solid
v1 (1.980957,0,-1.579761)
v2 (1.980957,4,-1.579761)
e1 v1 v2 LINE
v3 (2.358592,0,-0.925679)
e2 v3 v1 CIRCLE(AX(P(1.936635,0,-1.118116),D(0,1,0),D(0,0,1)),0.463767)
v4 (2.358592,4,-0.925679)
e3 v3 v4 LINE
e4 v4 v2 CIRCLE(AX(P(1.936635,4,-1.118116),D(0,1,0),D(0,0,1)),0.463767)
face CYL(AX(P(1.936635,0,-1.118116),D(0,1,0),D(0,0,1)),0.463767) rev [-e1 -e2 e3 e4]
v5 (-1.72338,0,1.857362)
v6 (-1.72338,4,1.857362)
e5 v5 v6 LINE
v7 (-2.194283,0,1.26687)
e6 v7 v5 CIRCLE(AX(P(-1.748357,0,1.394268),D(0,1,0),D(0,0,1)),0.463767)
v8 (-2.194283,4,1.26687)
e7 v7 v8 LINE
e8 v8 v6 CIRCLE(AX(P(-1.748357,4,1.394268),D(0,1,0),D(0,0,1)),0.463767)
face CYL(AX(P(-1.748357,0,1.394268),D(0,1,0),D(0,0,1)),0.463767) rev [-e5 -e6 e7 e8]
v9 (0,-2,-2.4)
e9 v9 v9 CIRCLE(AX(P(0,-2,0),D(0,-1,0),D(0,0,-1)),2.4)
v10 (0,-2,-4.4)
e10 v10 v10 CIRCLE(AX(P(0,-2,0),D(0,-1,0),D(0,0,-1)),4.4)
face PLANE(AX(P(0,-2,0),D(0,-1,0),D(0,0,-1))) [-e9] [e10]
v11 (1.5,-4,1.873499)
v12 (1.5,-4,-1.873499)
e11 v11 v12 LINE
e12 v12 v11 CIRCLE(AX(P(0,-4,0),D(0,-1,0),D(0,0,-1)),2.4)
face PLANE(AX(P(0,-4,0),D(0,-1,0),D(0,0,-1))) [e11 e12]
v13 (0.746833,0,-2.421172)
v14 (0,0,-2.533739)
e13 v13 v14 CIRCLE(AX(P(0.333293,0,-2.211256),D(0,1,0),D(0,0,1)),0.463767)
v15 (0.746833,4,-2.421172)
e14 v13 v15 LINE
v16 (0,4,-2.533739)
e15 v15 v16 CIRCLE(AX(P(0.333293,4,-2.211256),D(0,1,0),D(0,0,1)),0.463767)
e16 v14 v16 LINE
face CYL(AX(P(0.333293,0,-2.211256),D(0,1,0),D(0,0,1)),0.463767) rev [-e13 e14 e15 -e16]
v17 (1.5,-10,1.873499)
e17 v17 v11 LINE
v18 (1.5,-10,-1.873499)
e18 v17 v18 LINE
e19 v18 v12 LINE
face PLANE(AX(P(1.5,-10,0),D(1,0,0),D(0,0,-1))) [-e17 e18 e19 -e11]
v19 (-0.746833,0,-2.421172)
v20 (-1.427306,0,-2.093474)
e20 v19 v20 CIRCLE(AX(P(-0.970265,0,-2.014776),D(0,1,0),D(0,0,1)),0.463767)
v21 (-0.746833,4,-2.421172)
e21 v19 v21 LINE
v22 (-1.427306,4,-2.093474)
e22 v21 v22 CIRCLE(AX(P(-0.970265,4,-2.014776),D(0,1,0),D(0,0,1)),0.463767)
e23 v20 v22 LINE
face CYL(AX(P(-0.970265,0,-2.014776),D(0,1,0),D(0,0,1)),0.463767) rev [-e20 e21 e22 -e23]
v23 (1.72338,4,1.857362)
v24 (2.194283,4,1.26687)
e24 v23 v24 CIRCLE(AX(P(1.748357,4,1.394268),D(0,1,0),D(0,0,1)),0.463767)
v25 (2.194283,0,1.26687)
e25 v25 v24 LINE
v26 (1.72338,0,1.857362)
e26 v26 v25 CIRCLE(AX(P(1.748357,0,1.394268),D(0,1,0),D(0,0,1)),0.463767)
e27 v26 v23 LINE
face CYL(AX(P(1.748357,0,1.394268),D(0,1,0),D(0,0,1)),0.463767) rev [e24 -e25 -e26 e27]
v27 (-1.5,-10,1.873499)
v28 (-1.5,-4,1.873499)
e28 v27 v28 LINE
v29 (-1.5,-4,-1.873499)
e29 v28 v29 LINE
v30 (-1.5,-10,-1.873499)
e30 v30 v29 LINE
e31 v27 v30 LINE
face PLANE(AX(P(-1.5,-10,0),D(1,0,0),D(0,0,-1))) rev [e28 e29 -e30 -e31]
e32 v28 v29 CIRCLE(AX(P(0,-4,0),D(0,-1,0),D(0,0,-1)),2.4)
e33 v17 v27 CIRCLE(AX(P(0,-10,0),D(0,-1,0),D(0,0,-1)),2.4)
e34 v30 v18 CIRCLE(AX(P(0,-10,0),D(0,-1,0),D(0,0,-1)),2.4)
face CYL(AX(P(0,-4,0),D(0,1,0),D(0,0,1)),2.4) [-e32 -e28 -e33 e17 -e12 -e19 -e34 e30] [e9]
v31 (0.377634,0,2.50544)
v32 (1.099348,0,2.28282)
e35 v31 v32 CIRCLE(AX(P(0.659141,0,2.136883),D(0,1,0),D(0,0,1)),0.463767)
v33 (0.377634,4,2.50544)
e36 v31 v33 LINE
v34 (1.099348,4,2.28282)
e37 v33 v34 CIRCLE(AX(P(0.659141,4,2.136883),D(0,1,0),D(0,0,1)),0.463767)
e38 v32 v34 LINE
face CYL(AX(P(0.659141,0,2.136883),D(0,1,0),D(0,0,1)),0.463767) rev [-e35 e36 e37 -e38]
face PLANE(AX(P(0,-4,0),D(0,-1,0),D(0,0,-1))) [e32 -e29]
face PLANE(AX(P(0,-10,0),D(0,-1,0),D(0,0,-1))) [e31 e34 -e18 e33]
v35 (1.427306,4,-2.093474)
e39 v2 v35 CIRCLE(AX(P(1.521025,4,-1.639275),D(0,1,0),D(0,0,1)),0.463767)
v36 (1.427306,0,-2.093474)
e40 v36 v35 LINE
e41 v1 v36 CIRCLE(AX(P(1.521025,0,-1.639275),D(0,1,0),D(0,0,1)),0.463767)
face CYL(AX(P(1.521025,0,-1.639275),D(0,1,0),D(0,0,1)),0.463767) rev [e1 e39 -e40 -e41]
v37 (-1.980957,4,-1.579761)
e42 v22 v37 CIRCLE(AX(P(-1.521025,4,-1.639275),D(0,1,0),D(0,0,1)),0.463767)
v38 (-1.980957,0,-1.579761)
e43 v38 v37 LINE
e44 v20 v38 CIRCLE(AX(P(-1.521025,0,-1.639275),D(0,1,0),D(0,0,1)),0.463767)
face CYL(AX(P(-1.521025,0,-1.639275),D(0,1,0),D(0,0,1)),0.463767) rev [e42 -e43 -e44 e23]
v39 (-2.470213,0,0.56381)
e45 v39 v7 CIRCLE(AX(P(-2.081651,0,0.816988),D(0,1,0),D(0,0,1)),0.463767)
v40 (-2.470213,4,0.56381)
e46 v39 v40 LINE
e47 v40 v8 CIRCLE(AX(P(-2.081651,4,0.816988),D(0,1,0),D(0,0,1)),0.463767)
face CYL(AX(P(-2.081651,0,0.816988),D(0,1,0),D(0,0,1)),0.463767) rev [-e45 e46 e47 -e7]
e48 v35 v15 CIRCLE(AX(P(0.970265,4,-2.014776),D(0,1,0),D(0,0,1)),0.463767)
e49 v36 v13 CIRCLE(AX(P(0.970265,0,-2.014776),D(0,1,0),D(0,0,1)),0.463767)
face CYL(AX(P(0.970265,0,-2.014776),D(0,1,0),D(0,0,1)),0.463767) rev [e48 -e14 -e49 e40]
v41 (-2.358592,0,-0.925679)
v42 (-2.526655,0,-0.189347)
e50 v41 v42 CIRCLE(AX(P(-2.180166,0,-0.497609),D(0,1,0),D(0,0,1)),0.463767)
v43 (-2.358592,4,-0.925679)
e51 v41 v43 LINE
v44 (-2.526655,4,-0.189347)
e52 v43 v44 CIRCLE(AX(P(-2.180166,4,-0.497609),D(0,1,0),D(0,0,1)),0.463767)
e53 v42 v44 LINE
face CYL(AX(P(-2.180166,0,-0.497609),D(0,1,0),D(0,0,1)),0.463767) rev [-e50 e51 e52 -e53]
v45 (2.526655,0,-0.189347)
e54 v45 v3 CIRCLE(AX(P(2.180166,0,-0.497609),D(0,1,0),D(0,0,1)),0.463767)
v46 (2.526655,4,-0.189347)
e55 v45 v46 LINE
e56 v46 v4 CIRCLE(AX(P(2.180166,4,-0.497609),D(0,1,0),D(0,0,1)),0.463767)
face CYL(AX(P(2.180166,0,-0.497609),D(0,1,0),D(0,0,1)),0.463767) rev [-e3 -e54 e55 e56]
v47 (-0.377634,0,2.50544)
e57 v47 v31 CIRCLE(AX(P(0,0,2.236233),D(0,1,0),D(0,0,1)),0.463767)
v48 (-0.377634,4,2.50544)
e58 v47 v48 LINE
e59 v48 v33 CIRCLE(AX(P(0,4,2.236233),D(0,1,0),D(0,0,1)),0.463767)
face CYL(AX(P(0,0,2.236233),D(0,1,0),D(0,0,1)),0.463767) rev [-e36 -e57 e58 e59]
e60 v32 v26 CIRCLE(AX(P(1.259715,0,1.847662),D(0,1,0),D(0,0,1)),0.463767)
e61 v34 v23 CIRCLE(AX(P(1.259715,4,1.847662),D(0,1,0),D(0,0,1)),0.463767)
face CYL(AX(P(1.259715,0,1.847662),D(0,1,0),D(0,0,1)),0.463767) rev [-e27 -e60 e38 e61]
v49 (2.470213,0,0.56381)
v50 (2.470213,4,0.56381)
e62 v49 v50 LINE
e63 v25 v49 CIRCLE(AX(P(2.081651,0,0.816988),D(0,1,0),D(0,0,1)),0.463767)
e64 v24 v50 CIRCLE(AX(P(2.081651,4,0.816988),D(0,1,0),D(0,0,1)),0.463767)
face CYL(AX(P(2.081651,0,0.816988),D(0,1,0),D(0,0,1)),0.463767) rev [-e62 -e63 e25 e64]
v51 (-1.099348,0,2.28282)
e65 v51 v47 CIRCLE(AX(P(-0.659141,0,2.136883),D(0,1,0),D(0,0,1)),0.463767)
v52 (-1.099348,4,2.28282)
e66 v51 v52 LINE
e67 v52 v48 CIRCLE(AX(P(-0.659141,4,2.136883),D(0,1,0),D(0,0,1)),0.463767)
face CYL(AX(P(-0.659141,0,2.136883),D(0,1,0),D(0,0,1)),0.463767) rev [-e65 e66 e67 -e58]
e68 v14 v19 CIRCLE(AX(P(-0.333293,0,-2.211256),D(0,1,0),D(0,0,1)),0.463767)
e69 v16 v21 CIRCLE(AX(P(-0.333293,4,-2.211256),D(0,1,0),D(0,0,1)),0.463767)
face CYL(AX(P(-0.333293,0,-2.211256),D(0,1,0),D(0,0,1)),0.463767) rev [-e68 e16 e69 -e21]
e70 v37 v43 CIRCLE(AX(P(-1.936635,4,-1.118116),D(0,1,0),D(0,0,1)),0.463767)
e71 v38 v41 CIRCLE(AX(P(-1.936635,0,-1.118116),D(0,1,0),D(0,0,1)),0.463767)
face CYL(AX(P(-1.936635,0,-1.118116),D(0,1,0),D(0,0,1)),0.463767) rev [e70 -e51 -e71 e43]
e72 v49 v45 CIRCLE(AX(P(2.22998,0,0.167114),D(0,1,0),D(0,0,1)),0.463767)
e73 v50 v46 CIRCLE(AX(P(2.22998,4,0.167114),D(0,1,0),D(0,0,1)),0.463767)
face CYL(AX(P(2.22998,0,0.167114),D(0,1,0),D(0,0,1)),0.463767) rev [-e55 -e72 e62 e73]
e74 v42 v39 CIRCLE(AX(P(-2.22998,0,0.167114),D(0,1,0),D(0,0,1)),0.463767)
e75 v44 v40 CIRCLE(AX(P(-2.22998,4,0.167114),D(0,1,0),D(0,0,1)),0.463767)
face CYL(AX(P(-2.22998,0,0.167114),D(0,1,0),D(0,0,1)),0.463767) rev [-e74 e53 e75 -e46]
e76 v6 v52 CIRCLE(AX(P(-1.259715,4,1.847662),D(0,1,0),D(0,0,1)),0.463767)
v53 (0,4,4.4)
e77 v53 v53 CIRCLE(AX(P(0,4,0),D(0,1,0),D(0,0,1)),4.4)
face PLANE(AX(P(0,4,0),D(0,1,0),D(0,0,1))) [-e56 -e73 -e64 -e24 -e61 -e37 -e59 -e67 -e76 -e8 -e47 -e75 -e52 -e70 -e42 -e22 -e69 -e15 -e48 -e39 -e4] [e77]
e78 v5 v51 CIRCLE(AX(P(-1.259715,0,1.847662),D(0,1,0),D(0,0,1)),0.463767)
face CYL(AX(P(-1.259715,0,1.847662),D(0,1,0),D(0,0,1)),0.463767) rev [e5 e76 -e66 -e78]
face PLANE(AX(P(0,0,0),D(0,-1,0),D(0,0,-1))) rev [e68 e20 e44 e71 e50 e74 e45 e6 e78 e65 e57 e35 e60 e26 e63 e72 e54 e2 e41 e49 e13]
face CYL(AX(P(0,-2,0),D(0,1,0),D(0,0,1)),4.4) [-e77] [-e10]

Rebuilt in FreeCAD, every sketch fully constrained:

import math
import FreeCAD as App
import Part
import Sketcher
from FreeCAD import Vector
Q = App.Units.Quantity

doc = App.newDocument("Part")
params = doc.addObject("Spreadsheet::Sheet", "Params")
for row, (alias, value) in enumerate([
    ("sketch1_diameter", "7.9 mm"),
    ("pad1_length", "4 mm"),
    ("sketch2_diameter", "8.8 mm"),
    ("pad2_length", "2 mm"),
    ("sketch3_diameter", "4.8 mm"),
    ("pad3_length", "2 mm"),
    ("sketch4_radius", "2.4 mm"),
    ("pad4_length", "6 mm"),
    ("sketch5_diameter", "8.8 mm"),
    ("sketch5_diameter2", "7.9 mm"),
    ("pad5_length", "4 mm"),
    ("pocket1_length", "4 mm"),
], start=1):
    params.set(f"A{row}", alias)
    params.set(f"B{row}", "=" + value)
    params.setAlias(f"B{row}", alias)

body = doc.addObject("PartDesign::Body", "Body")

# Sketch on XZ plane
sketch1 = body.newObject("Sketcher::SketchObject", "Sketch")
sketch1.AttachmentSupport = (doc.getObject("XZ_Plane"), [""])
sketch1.MapMode = "FlatFace"
sketch1.addGeometry(Part.Circle(Vector(0, 0, 0), Vector(0, 0, 1), 3.95), False)
sketch1.addGeometry(Part.ArcOfCircle(Part.Circle(Vector(-0.33, -2.21, 0), Vector(0, 0, 1), 0.21), math.radians(-158), math.radians(-39)), False)
sketch1.addGeometry(Part.ArcOfCircle(Part.Circle(Vector(0, -2.48, 0), Vector(0, 0, 1), 0.21), math.radians(90), math.radians(141)), False)
sketch1.addGeometry(Part.ArcOfCircle(Part.Circle(Vector(0, -2.48, 0), Vector(0, 0, 1), 0.21), math.radians(39), math.radians(90)), False)
sketch1.addGeometry(Part.ArcOfCircle(Part.Circle(Vector(0.33, -2.21, 0), Vector(0, 0, 1), 0.21), math.radians(-141), math.radians(-22)), False)
sketch1.addGeometry(Part.ArcOfCircle(Part.Circle(Vector(0.73, -2.37, 0), Vector(0, 0, 1), 0.21), math.radians(107), math.radians(158)), False)
sketch1.addGeometry(Part.ArcOfCircle(Part.Circle(Vector(0.73, -2.37, 0), Vector(0, 0, 1), 0.21), math.radians(56), math.radians(107)), False)
sketch1.addGeometry(Part.ArcOfCircle(Part.Circle(Vector(0.97, -2.01, 0), Vector(0, 0, 1), 0.21), math.radians(-124), math.radians(-4)), False)
sketch1.addGeometry(Part.ArcOfCircle(Part.Circle(Vector(1.4, -2.05, 0), Vector(0, 0, 1), 0.21), math.radians(124), math.radians(176)), False)
sketch1.addGeometry(Part.ArcOfCircle(Part.Circle(Vector(1.4, -2.05, 0), Vector(0, 0, 1), 0.21), math.radians(73), math.radians(124)), False)
sketch1.addGeometry(Part.ArcOfCircle(Part.Circle(Vector(1.52, -1.64, 0), Vector(0, 0, 1), 0.21), math.radians(-107), math.radians(13)), False)
sketch1.addGeometry(Part.ArcOfCircle(Part.Circle(Vector(1.94, -1.55, 0), Vector(0, 0, 1), 0.21), math.radians(141), math.radians(193)), False)
sketch1.addGeometry(Part.ArcOfCircle(Part.Circle(Vector(1.94, -1.55, 0), Vector(0, 0, 1), 0.21), math.radians(90), math.radians(141)), False)
sketch1.addGeometry(Part.ArcOfCircle(Part.Circle(Vector(1.94, -1.12, 0), Vector(0, 0, 1), 0.21), math.radians(-90), math.radians(30)), False)
sketch1.addGeometry(Part.ArcOfCircle(Part.Circle(Vector(2.31, -0.91, 0), Vector(0, 0, 1), 0.21), math.radians(159), math.radians(210)), False)
sketch1.addGeometry(Part.ArcOfCircle(Part.Circle(Vector(2.31, -0.91, 0), Vector(0, 0, 1), 0.21), math.radians(107), math.radians(159)), False)
sketch1.addGeometry(Part.ArcOfCircle(Part.Circle(Vector(2.18, -0.5, 0), Vector(0, 0, 1), 0.21), math.radians(-73), math.radians(47)), False)
sketch1.addGeometry(Part.ArcOfCircle(Part.Circle(Vector(2.47, -0.19, 0), Vector(0, 0, 1), 0.21), math.radians(176), math.radians(227)), False)
sketch1.addGeometry(Part.ArcOfCircle(Part.Circle(Vector(2.47, -0.19, 0), Vector(0, 0, 1), 0.21), math.radians(124), math.radians(176)), False)
sketch1.addGeometry(Part.ArcOfCircle(Part.Circle(Vector(2.23, 0.17, 0), Vector(0, 0, 1), 0.21), math.radians(-56), math.radians(64)), False)
sketch1.addGeometry(Part.ArcOfCircle(Part.Circle(Vector(2.42, 0.55, 0), Vector(0, 0, 1), 0.21), math.radians(-167), math.radians(-116)), False)
sketch1.addGeometry(Part.ArcOfCircle(Part.Circle(Vector(2.42, 0.55, 0), Vector(0, 0, 1), 0.21), math.radians(142), math.radians(193)), False)
sketch1.addGeometry(Part.ArcOfCircle(Part.Circle(Vector(2.08, 0.82, 0), Vector(0, 0, 1), 0.21), math.radians(-38), math.radians(81)), False)
sketch1.addGeometry(Part.ArcOfCircle(Part.Circle(Vector(2.15, 1.24, 0), Vector(0, 0, 1), 0.21), math.radians(-150), math.radians(-99)), False)
sketch1.addGeometry(Part.ArcOfCircle(Part.Circle(Vector(2.15, 1.24, 0), Vector(0, 0, 1), 0.21), math.radians(159), math.radians(210)), False)
sketch1.addGeometry(Part.ArcOfCircle(Part.Circle(Vector(1.75, 1.39, 0), Vector(0, 0, 1), 0.21), math.radians(-21), math.radians(98)), False)
sketch1.addGeometry(Part.ArcOfCircle(Part.Circle(Vector(1.69, 1.82, 0), Vector(0, 0, 1), 0.21), math.radians(-133), math.radians(-82)), False)
sketch1.addGeometry(Part.ArcOfCircle(Part.Circle(Vector(1.69, 1.82, 0), Vector(0, 0, 1), 0.21), math.radians(176), math.radians(227)), False)
sketch1.addGeometry(Part.ArcOfCircle(Part.Circle(Vector(1.26, 1.85, 0), Vector(0, 0, 1), 0.21), math.radians(-4), math.radians(116)), False)
sketch1.addGeometry(Part.ArcOfCircle(Part.Circle(Vector(1.08, 2.23, 0), Vector(0, 0, 1), 0.21), math.radians(-116), math.radians(-64)), False)
sketch1.addGeometry(Part.ArcOfCircle(Part.Circle(Vector(1.08, 2.23, 0), Vector(0, 0, 1), 0.21), math.radians(-167), math.radians(-116)), False)
sketch1.addGeometry(Part.ArcOfCircle(Part.Circle(Vector(0.66, 2.14, 0), Vector(0, 0, 1), 0.21), math.radians(13), math.radians(133)), False)
sketch1.addGeometry(Part.ArcOfCircle(Part.Circle(Vector(0.37, 2.45, 0), Vector(0, 0, 1), 0.21), math.radians(-99), math.radians(-47)), False)
sketch1.addGeometry(Part.ArcOfCircle(Part.Circle(Vector(0.37, 2.45, 0), Vector(0, 0, 1), 0.21), math.radians(-150), math.radians(-99)), False)
sketch1.addGeometry(Part.ArcOfCircle(Part.Circle(Vector(0, 2.24, 0), Vector(0, 0, 1), 0.21), math.radians(30), math.radians(150)), False)
sketch1.addGeometry(Part.ArcOfCircle(Part.Circle(Vector(-0.37, 2.45, 0), Vector(0, 0, 1), 0.21), math.radians(-81), math.radians(-30)), False)
sketch1.addGeometry(Part.ArcOfCircle(Part.Circle(Vector(-0.37, 2.45, 0), Vector(0, 0, 1), 0.21), math.radians(-133), math.radians(-81)), False)
sketch1.addGeometry(Part.ArcOfCircle(Part.Circle(Vector(-0.66, 2.14, 0), Vector(0, 0, 1), 0.21), math.radians(47), math.radians(167)), False)
sketch1.addGeometry(Part.ArcOfCircle(Part.Circle(Vector(-1.08, 2.23, 0), Vector(0, 0, 1), 0.21), math.radians(-64), math.radians(-13)), False)
sketch1.addGeometry(Part.ArcOfCircle(Part.Circle(Vector(-1.08, 2.23, 0), Vector(0, 0, 1), 0.21), math.radians(-116), math.radians(-64)), False)
sketch1.addGeometry(Part.ArcOfCircle(Part.Circle(Vector(-1.26, 1.85, 0), Vector(0, 0, 1), 0.21), math.radians(64), math.radians(184)), False)
sketch1.addGeometry(Part.ArcOfCircle(Part.Circle(Vector(-1.69, 1.82, 0), Vector(0, 0, 1), 0.21), math.radians(-47), math.radians(4)), False)
sketch1.addGeometry(Part.ArcOfCircle(Part.Circle(Vector(-1.69, 1.82, 0), Vector(0, 0, 1), 0.21), math.radians(-98), math.radians(-47)), False)
sketch1.addGeometry(Part.ArcOfCircle(Part.Circle(Vector(-1.75, 1.39, 0), Vector(0, 0, 1), 0.21), math.radians(82), math.radians(201)), False)
sketch1.addGeometry(Part.ArcOfCircle(Part.Circle(Vector(-2.15, 1.24, 0), Vector(0, 0, 1), 0.21), math.radians(-30), math.radians(21)), False)
sketch1.addGeometry(Part.ArcOfCircle(Part.Circle(Vector(-2.15, 1.24, 0), Vector(0, 0, 1), 0.21), math.radians(-81), math.radians(-30)), False)
sketch1.addGeometry(Part.ArcOfCircle(Part.Circle(Vector(-2.08, 0.82, 0), Vector(0, 0, 1), 0.21), math.radians(99), math.radians(218)), False)
sketch1.addGeometry(Part.ArcOfCircle(Part.Circle(Vector(-2.42, 0.55, 0), Vector(0, 0, 1), 0.21), math.radians(-13), math.radians(38)), False)
sketch1.addGeometry(Part.ArcOfCircle(Part.Circle(Vector(-2.42, 0.55, 0), Vector(0, 0, 1), 0.21), math.radians(-64), math.radians(-13)), False)
sketch1.addGeometry(Part.ArcOfCircle(Part.Circle(Vector(-2.23, 0.17, 0), Vector(0, 0, 1), 0.21), math.radians(116), math.radians(236)), False)
sketch1.addGeometry(Part.ArcOfCircle(Part.Circle(Vector(-2.47, -0.19, 0), Vector(0, 0, 1), 0.21), math.radians(4), math.radians(56)), False)
sketch1.addGeometry(Part.ArcOfCircle(Part.Circle(Vector(-2.47, -0.19, 0), Vector(0, 0, 1), 0.21), math.radians(-47), math.radians(4)), False)
sketch1.addGeometry(Part.ArcOfCircle(Part.Circle(Vector(-2.18, -0.5, 0), Vector(0, 0, 1), 0.21), math.radians(133), math.radians(253)), False)
sketch1.addGeometry(Part.ArcOfCircle(Part.Circle(Vector(-2.31, -0.91, 0), Vector(0, 0, 1), 0.21), math.radians(21), math.radians(73)), False)
sketch1.addGeometry(Part.ArcOfCircle(Part.Circle(Vector(-2.31, -0.91, 0), Vector(0, 0, 1), 0.21), math.radians(-30), math.radians(21)), False)
sketch1.addGeometry(Part.ArcOfCircle(Part.Circle(Vector(-1.94, -1.12, 0), Vector(0, 0, 1), 0.21), math.radians(150), math.radians(270)), False)
sketch1.addGeometry(Part.ArcOfCircle(Part.Circle(Vector(-1.94, -1.55, 0), Vector(0, 0, 1), 0.21), math.radians(39), math.radians(90)), False)
sketch1.addGeometry(Part.ArcOfCircle(Part.Circle(Vector(-1.94, -1.55, 0), Vector(0, 0, 1), 0.21), math.radians(-13), math.radians(39)), False)
sketch1.addGeometry(Part.ArcOfCircle(Part.Circle(Vector(-1.52, -1.64, 0), Vector(0, 0, 1), 0.21), math.radians(167), math.radians(287)), False)
sketch1.addGeometry(Part.ArcOfCircle(Part.Circle(Vector(-1.4, -2.05, 0), Vector(0, 0, 1), 0.21), math.radians(56), math.radians(107)), False)
sketch1.addGeometry(Part.ArcOfCircle(Part.Circle(Vector(-1.4, -2.05, 0), Vector(0, 0, 1), 0.21), math.radians(4), math.radians(56)), False)
sketch1.addGeometry(Part.ArcOfCircle(Part.Circle(Vector(-0.97, -2.01, 0), Vector(0, 0, 1), 0.21), math.radians(-176), math.radians(-56)), False)
sketch1.addGeometry(Part.ArcOfCircle(Part.Circle(Vector(-0.73, -2.37, 0), Vector(0, 0, 1), 0.21), math.radians(73), math.radians(124)), False)
sketch1.addGeometry(Part.ArcOfCircle(Part.Circle(Vector(-0.73, -2.37, 0), Vector(0, 0, 1), 0.21), math.radians(22), math.radians(73)), False)
sketch1.addConstraint(Sketcher.Constraint("Tangent", 1, 2, 2, 2))
sketch1.addConstraint(Sketcher.Constraint("Tangent", 2, 1, 3, 2))
sketch1.addConstraint(Sketcher.Constraint("Tangent", 3, 1, 4, 1))
sketch1.addConstraint(Sketcher.Constraint("Tangent", 4, 2, 5, 2))
sketch1.addConstraint(Sketcher.Constraint("Tangent", 5, 1, 6, 2))
sketch1.addConstraint(Sketcher.Constraint("Tangent", 6, 1, 7, 1))
sketch1.addConstraint(Sketcher.Constraint("Tangent", 7, 2, 8, 2))
sketch1.addConstraint(Sketcher.Constraint("Tangent", 8, 1, 9, 2))
sketch1.addConstraint(Sketcher.Constraint("Tangent", 9, 1, 10, 1))
sketch1.addConstraint(Sketcher.Constraint("Tangent", 10, 2, 11, 2))
sketch1.addConstraint(Sketcher.Constraint("Tangent", 11, 1, 12, 2))
sketch1.addConstraint(Sketcher.Constraint("Tangent", 12, 1, 13, 1))
sketch1.addConstraint(Sketcher.Constraint("Tangent", 13, 2, 14, 2))
sketch1.addConstraint(Sketcher.Constraint("Tangent", 14, 1, 15, 2))
sketch1.addConstraint(Sketcher.Constraint("Tangent", 15, 1, 16, 1))
sketch1.addConstraint(Sketcher.Constraint("Tangent", 16, 2, 17, 2))
sketch1.addConstraint(Sketcher.Constraint("Tangent", 17, 1, 18, 2))
sketch1.addConstraint(Sketcher.Constraint("Tangent", 18, 1, 19, 1))
sketch1.addConstraint(Sketcher.Constraint("Tangent", 19, 2, 20, 2))
sketch1.addConstraint(Sketcher.Constraint("Tangent", 20, 1, 21, 2))
sketch1.addConstraint(Sketcher.Constraint("Tangent", 21, 1, 22, 1))
sketch1.addConstraint(Sketcher.Constraint("Tangent", 22, 2, 23, 2))
sketch1.addConstraint(Sketcher.Constraint("Tangent", 23, 1, 24, 2))
sketch1.addConstraint(Sketcher.Constraint("Tangent", 24, 1, 25, 1))
sketch1.addConstraint(Sketcher.Constraint("Tangent", 25, 2, 26, 2))
sketch1.addConstraint(Sketcher.Constraint("Tangent", 26, 1, 27, 2))
sketch1.addConstraint(Sketcher.Constraint("Tangent", 27, 1, 28, 1))
sketch1.addConstraint(Sketcher.Constraint("Tangent", 28, 2, 29, 2))
sketch1.addConstraint(Sketcher.Constraint("Tangent", 29, 1, 30, 2))
sketch1.addConstraint(Sketcher.Constraint("Tangent", 30, 1, 31, 1))
sketch1.addConstraint(Sketcher.Constraint("Tangent", 31, 2, 32, 2))
sketch1.addConstraint(Sketcher.Constraint("Tangent", 32, 1, 33, 2))
sketch1.addConstraint(Sketcher.Constraint("Tangent", 33, 1, 34, 1))
sketch1.addConstraint(Sketcher.Constraint("Tangent", 34, 2, 35, 2))
sketch1.addConstraint(Sketcher.Constraint("Tangent", 35, 1, 36, 2))
sketch1.addConstraint(Sketcher.Constraint("Tangent", 36, 1, 37, 1))
sketch1.addConstraint(Sketcher.Constraint("Tangent", 37, 2, 38, 2))
sketch1.addConstraint(Sketcher.Constraint("Tangent", 38, 1, 39, 2))
sketch1.addConstraint(Sketcher.Constraint("Tangent", 39, 1, 40, 1))
sketch1.addConstraint(Sketcher.Constraint("Tangent", 40, 2, 41, 2))
sketch1.addConstraint(Sketcher.Constraint("Tangent", 41, 1, 42, 2))
sketch1.addConstraint(Sketcher.Constraint("Tangent", 42, 1, 43, 1))
sketch1.addConstraint(Sketcher.Constraint("Tangent", 43, 2, 44, 2))
sketch1.addConstraint(Sketcher.Constraint("Tangent", 44, 1, 45, 2))
sketch1.addConstraint(Sketcher.Constraint("Tangent", 45, 1, 46, 1))
sketch1.addConstraint(Sketcher.Constraint("Tangent", 46, 2, 47, 2))
sketch1.addConstraint(Sketcher.Constraint("Tangent", 47, 1, 48, 2))
sketch1.addConstraint(Sketcher.Constraint("Tangent", 48, 1, 49, 1))
sketch1.addConstraint(Sketcher.Constraint("Tangent", 49, 2, 50, 2))
sketch1.addConstraint(Sketcher.Constraint("Tangent", 50, 1, 51, 2))
sketch1.addConstraint(Sketcher.Constraint("Tangent", 51, 1, 52, 1))
sketch1.addConstraint(Sketcher.Constraint("Tangent", 52, 2, 53, 2))
sketch1.addConstraint(Sketcher.Constraint("Tangent", 53, 1, 54, 2))
sketch1.addConstraint(Sketcher.Constraint("Tangent", 54, 1, 55, 1))
sketch1.addConstraint(Sketcher.Constraint("Tangent", 55, 2, 56, 2))
sketch1.addConstraint(Sketcher.Constraint("Tangent", 56, 1, 57, 2))
sketch1.addConstraint(Sketcher.Constraint("Tangent", 57, 1, 58, 1))
sketch1.addConstraint(Sketcher.Constraint("Tangent", 58, 2, 59, 2))
sketch1.addConstraint(Sketcher.Constraint("Tangent", 59, 1, 60, 2))
sketch1.addConstraint(Sketcher.Constraint("Tangent", 60, 1, 61, 1))
sketch1.addConstraint(Sketcher.Constraint("Tangent", 61, 2, 62, 2))
sketch1.addConstraint(Sketcher.Constraint("Tangent", 62, 1, 63, 2))
sketch1.addConstraint(Sketcher.Constraint("Tangent", 63, 1, 1, 1))
sketch1.addConstraint(Sketcher.Constraint("Coincident", 0, 3, -1, 1))
sketch1.addConstraint(Sketcher.Constraint("Equal", 1, 2))
sketch1.addConstraint(Sketcher.Constraint("Equal", 2, 3))
sketch1.addConstraint(Sketcher.Constraint("Equal", 3, 4))
sketch1.addConstraint(Sketcher.Constraint("Equal", 4, 5))
sketch1.addConstraint(Sketcher.Constraint("Equal", 5, 6))
sketch1.addConstraint(Sketcher.Constraint("Equal", 6, 7))
sketch1.addConstraint(Sketcher.Constraint("Equal", 7, 8))
sketch1.addConstraint(Sketcher.Constraint("Equal", 8, 9))
sketch1.addConstraint(Sketcher.Constraint("Equal", 9, 10))
sketch1.addConstraint(Sketcher.Constraint("Equal", 10, 11))
sketch1.addConstraint(Sketcher.Constraint("Equal", 11, 12))
sketch1.addConstraint(Sketcher.Constraint("Equal", 12, 13))
sketch1.addConstraint(Sketcher.Constraint("Equal", 13, 14))
sketch1.addConstraint(Sketcher.Constraint("Equal", 14, 15))
sketch1.addConstraint(Sketcher.Constraint("Equal", 15, 16))
sketch1.addConstraint(Sketcher.Constraint("Equal", 16, 17))
sketch1.addConstraint(Sketcher.Constraint("Equal", 17, 18))
sketch1.addConstraint(Sketcher.Constraint("Equal", 18, 19))
sketch1.addConstraint(Sketcher.Constraint("Equal", 19, 20))
sketch1.addConstraint(Sketcher.Constraint("Equal", 20, 21))
sketch1.addConstraint(Sketcher.Constraint("Equal", 21, 22))
sketch1.addConstraint(Sketcher.Constraint("Equal", 22, 23))
sketch1.addConstraint(Sketcher.Constraint("Equal", 23, 24))
sketch1.addConstraint(Sketcher.Constraint("Equal", 24, 25))
sketch1.addConstraint(Sketcher.Constraint("Equal", 25, 26))
sketch1.addConstraint(Sketcher.Constraint("Equal", 26, 27))
sketch1.addConstraint(Sketcher.Constraint("Equal", 27, 28))
sketch1.addConstraint(Sketcher.Constraint("Equal", 28, 29))
sketch1.addConstraint(Sketcher.Constraint("Equal", 29, 30))
sketch1.addConstraint(Sketcher.Constraint("Equal", 30, 31))
sketch1.addConstraint(Sketcher.Constraint("Equal", 31, 32))
sketch1.addConstraint(Sketcher.Constraint("Equal", 32, 33))
sketch1.addConstraint(Sketcher.Constraint("Equal", 33, 34))
sketch1.addConstraint(Sketcher.Constraint("Equal", 34, 35))
sketch1.addConstraint(Sketcher.Constraint("Equal", 35, 36))
sketch1.addConstraint(Sketcher.Constraint("Equal", 36, 37))
sketch1.addConstraint(Sketcher.Constraint("Equal", 37, 38))
sketch1.addConstraint(Sketcher.Constraint("Equal", 38, 39))
sketch1.addConstraint(Sketcher.Constraint("Equal", 39, 40))
sketch1.addConstraint(Sketcher.Constraint("Equal", 40, 41))
sketch1.addConstraint(Sketcher.Constraint("Equal", 41, 42))
sketch1.addConstraint(Sketcher.Constraint("Equal", 42, 43))
sketch1.addConstraint(Sketcher.Constraint("Equal", 43, 44))
sketch1.addConstraint(Sketcher.Constraint("Equal", 44, 45))
sketch1.addConstraint(Sketcher.Constraint("Equal", 45, 46))
sketch1.addConstraint(Sketcher.Constraint("Equal", 46, 47))
sketch1.addConstraint(Sketcher.Constraint("Equal", 47, 48))
sketch1.addConstraint(Sketcher.Constraint("Equal", 48, 49))
sketch1.addConstraint(Sketcher.Constraint("Equal", 49, 50))
sketch1.addConstraint(Sketcher.Constraint("Equal", 50, 51))
sketch1.addConstraint(Sketcher.Constraint("Equal", 51, 52))
sketch1.addConstraint(Sketcher.Constraint("Equal", 52, 53))
sketch1.addConstraint(Sketcher.Constraint("Equal", 53, 54))
sketch1.addConstraint(Sketcher.Constraint("Equal", 54, 55))
sketch1.addConstraint(Sketcher.Constraint("Equal", 55, 56))
sketch1.addConstraint(Sketcher.Constraint("Equal", 56, 57))
sketch1.addConstraint(Sketcher.Constraint("Equal", 57, 58))
sketch1.addConstraint(Sketcher.Constraint("Equal", 58, 59))
sketch1.addConstraint(Sketcher.Constraint("Equal", 59, 60))
sketch1.addConstraint(Sketcher.Constraint("Equal", 60, 61))
sketch1.addConstraint(Sketcher.Constraint("Equal", 61, 62))
sketch1.addConstraint(Sketcher.Constraint("Equal", 62, 63))
sketch1.addConstraint(Sketcher.Constraint("Symmetric", 1, 3, 4, 3, -2))
sketch1.addConstraint(Sketcher.Constraint("Symmetric", 32, 3, 35, 3, -2))
sketch1.addConstraint(Sketcher.Constraint("Symmetric", 29, 3, 38, 3, -2))
sketch1.addConstraint(Sketcher.Constraint("Symmetric", 26, 3, 41, 3, -2))
sketch1.addConstraint(Sketcher.Constraint("Symmetric", 23, 3, 44, 3, -2))
sketch1.addConstraint(Sketcher.Constraint("Symmetric", 20, 3, 47, 3, -2))
sketch1.addConstraint(Sketcher.Constraint("Symmetric", 17, 3, 50, 3, -2))
sketch1.addConstraint(Sketcher.Constraint("Symmetric", 14, 3, 53, 3, -2))
sketch1.addConstraint(Sketcher.Constraint("Symmetric", 11, 3, 56, 3, -2))
sketch1.addConstraint(Sketcher.Constraint("Symmetric", 8, 3, 59, 3, -2))
sketch1.addConstraint(Sketcher.Constraint("Symmetric", 5, 1, 62, 1, -2))
sketch1.addConstraint(Sketcher.Constraint("PointOnObject", 2, 1, -2))
sketch1.addConstraint(Sketcher.Constraint("Horizontal", 32, 1, 35, 1))
sketch1.addConstraint(Sketcher.Constraint("Horizontal", 29, 1, 38, 1))
sketch1.addConstraint(Sketcher.Constraint("Horizontal", 26, 1, 41, 1))
sketch1.addConstraint(Sketcher.Constraint("Horizontal", 23, 1, 44, 1))
sketch1.addConstraint(Sketcher.Constraint("Horizontal", 20, 1, 47, 1))
sketch1.addConstraint(Sketcher.Constraint("Horizontal", 17, 1, 50, 1))
sketch1.addConstraint(Sketcher.Constraint("Horizontal", 14, 1, 53, 1))
sketch1.addConstraint(Sketcher.Constraint("Horizontal", 11, 1, 56, 1))
sketch1.addConstraint(Sketcher.Constraint("Horizontal", 8, 1, 59, 1))
sketch1.addConstraint(Sketcher.Constraint("Diameter", 0, Q("7.9 mm")))
sketch1.addConstraint(Sketcher.Constraint("DistanceX", -1, 1, 4, 2, Q("0.532 mm")))
sketch1.addConstraint(Sketcher.Constraint("Radius", 1, Q("0.213767 mm")))
sketch1.addConstraint(Sketcher.Constraint("DistanceX", -1, 1, 23, 3, Q("2.1469 mm")))
sketch1.addConstraint(Sketcher.Constraint("DistanceY", 5, 3, -1, 1, Q("2.36889 mm")))
sketch1.addConstraint(Sketcher.Constraint("DistanceX", -1, 1, 11, 3, Q("1.938181 mm")))
sketch1.addConstraint(Sketcher.Constraint("DistanceX", -1, 1, 14, 3, Q("2.307661 mm")))
sketch1.addConstraint(Sketcher.Constraint("DistanceY", 14, 3, -1, 1, Q("0.90569 mm")))
sketch1.addConstraint(Sketcher.Constraint("DistanceY", 16, 3, -1, 1, Q("0.497609 mm")))
sketch1.addConstraint(Sketcher.Constraint("DistanceX", -1, 1, 19, 3, Q("2.22998 mm")))
sketch1.addConstraint(Sketcher.Constraint("DistanceX", -1, 1, 22, 3, Q("2.081651 mm")))
sketch1.addConstraint(Sketcher.Constraint("DistanceY", -1, 1, 25, 3, Q("1.394268 mm")))
sketch1.addConstraint(Sketcher.Constraint("DistanceX", -1, 1, 29, 3, Q("1.075609 mm")))
sketch1.addConstraint(Sketcher.Constraint("DistanceX", -1, 1, 31, 3, Q("0.659141 mm")))
sketch1.addConstraint(Sketcher.Constraint("DistanceX", -1, 1, 32, 3, Q("0.36948 mm")))
sketch1.addConstraint(Sketcher.Constraint("DistanceY", 1, 2, -1, 1, Q("2.345141 mm")))
sketch1.addConstraint(Sketcher.Constraint("DistanceY", 5, 1, -1, 1, Q("2.16462 mm")))
sketch1.addConstraint(Sketcher.Constraint("DistanceY", 9, 1, -1, 1, Q("1.843771 mm")))
sketch1.addConstraint(Sketcher.Constraint("DistanceY", 10, 2, -1, 1, Q("1.592461 mm")))
sketch1.addConstraint(Sketcher.Constraint("DistanceX", -1, 1, 11, 1, Q("1.771051 mm")))
sketch1.addConstraint(Sketcher.Constraint("DistanceX", -1, 1, 14, 1, Q("2.108671 mm")))
sketch1.addConstraint(Sketcher.Constraint("DistanceX", -1, 1, 16, 2, Q("2.32613 mm")))
sketch1.addConstraint(Sketcher.Constraint("DistanceX", -1, 1, 21, 1, Q("2.249261 mm")))
sketch1.addConstraint(Sketcher.Constraint("DistanceY", -1, 1, 23, 1, Q("1.13263 mm")))
sketch1.addConstraint(Sketcher.Constraint("DistanceX", -1, 1, 25, 2, Q("1.717262 mm")))
sketch1.addConstraint(Sketcher.Constraint("DistanceX", -1, 1, 27, 1, Q("1.472941 mm")))
sketch1.addConstraint(Sketcher.Constraint("DistanceX", -1, 1, 29, 1, Q("0.982859 mm")))
sketch1.addConstraint(Sketcher.Constraint("DistanceX", -1, 1, 32, 1, Q("0.337619 mm")))
sketch1.addConstraint(Sketcher.Constraint("DistanceX", -1, 1, 7, 3, Q("0.970265 mm")))
sketch1.addConstraint(Sketcher.Constraint("DistanceX", -1, 1, 8, 1, Q("1.276066 mm")))
sketch1.addConstraint(Sketcher.Constraint("DistanceX", -1, 1, 17, 1, Q("2.258925 mm")))
sketch1.addConstraint(Sketcher.Constraint("DistanceX", -1, 1, 20, 1, Q("2.208465 mm")))
sketch1.addConstraint(Sketcher.Constraint("DistanceX", -1, 1, 26, 1, Q("1.540768 mm")))
sketch1.setExpression("Constraints[147]", "Params.sketch1_diameter")
pad1 = body.newObject("PartDesign::Pad", "Pad")
pad1.Profile = sketch1
pad1.setExpression("Length", "Params.pad1_length")
pad1.Reversed = True

# Sketch on XZ plane
sketch2 = body.newObject("Sketcher::SketchObject", "Sketch001")
sketch2.AttachmentSupport = (doc.getObject("XZ_Plane"), [""])
sketch2.MapMode = "FlatFace"
sketch2.addGeometry(Part.Circle(Vector(0, 0, 0), Vector(0, 0, 1), 4.4), False)
sketch2.addConstraint(Sketcher.Constraint("Coincident", 0, 3, -1, 1))
sketch2.addConstraint(Sketcher.Constraint("Diameter", 0, Q("8.8 mm")))
sketch2.setExpression("Constraints[1]", "Params.sketch2_diameter")
pad2 = body.newObject("PartDesign::Pad", "Pad001")
pad2.Profile = sketch2
pad2.setExpression("Length", "Params.pad2_length")

# Sketch on XZ plane
sketch3 = body.newObject("Sketcher::SketchObject", "Sketch002")
sketch3.AttachmentSupport = (doc.getObject("XZ_Plane"), [""])
sketch3.MapMode = "FlatFace"
sketch3.AttachmentOffset = App.Placement(Vector(0, 0, 2), App.Rotation())
sketch3.addGeometry(Part.Circle(Vector(0, 0, 0), Vector(0, 0, 1), 2.4), False)
sketch3.addConstraint(Sketcher.Constraint("Coincident", 0, 3, -1, 1))
sketch3.addConstraint(Sketcher.Constraint("Diameter", 0, Q("4.8 mm")))
sketch3.setExpression("Constraints[1]", "Params.sketch3_diameter")
pad3 = body.newObject("PartDesign::Pad", "Pad002")
pad3.Profile = sketch3
pad3.setExpression("Length", "Params.pad3_length")

# Sketch on XZ plane
sketch4 = body.newObject("Sketcher::SketchObject", "Sketch003")
sketch4.AttachmentSupport = (doc.getObject("XZ_Plane"), [""])
sketch4.MapMode = "FlatFace"
sketch4.AttachmentOffset = App.Placement(Vector(0, 0, 4), App.Rotation())
sketch4.addGeometry(Part.ArcOfCircle(Part.Circle(Vector(0, 0, 0), Vector(0, 0, 1), 2.4), math.radians(51), math.radians(129)), False)
sketch4.addGeometry(Part.LineSegment(Vector(-1.5, 1.9, 0), Vector(-1.5, -1.9, 0)), False)
sketch4.addGeometry(Part.ArcOfCircle(Part.Circle(Vector(0, 0, 0), Vector(0, 0, 1), 2.4), math.radians(-129), math.radians(-51)), False)
sketch4.addGeometry(Part.LineSegment(Vector(1.5, -1.9, 0), Vector(1.5, 1.9, 0)), False)
sketch4.addConstraint(Sketcher.Constraint("Coincident", 0, 2, 1, 1))
sketch4.addConstraint(Sketcher.Constraint("Coincident", 1, 2, 2, 1))
sketch4.addConstraint(Sketcher.Constraint("Coincident", 2, 2, 3, 1))
sketch4.addConstraint(Sketcher.Constraint("Coincident", 3, 2, 0, 1))
sketch4.addConstraint(Sketcher.Constraint("Vertical", 1))
sketch4.addConstraint(Sketcher.Constraint("Vertical", 3))
sketch4.addConstraint(Sketcher.Constraint("Coincident", 0, 3, -1, 1))
sketch4.addConstraint(Sketcher.Constraint("Coincident", 2, 3, -1, 1))
sketch4.addConstraint(Sketcher.Constraint("Equal", 0, 2))
sketch4.addConstraint(Sketcher.Constraint("Horizontal", 1, 2, 2, 2))
sketch4.addConstraint(Sketcher.Constraint("Radius", 0, Q("2.4 mm")))
sketch4.addConstraint(Sketcher.Constraint("DistanceX", 1, 2, 2, 2, Q("3 mm")))
sketch4.setExpression("Constraints[10]", "Params.sketch4_radius")
pad4 = body.newObject("PartDesign::Pad", "Pad003")
pad4.Profile = sketch4
pad4.setExpression("Length", "Params.pad4_length")

# Sketch on XZ plane
sketch5 = body.newObject("Sketcher::SketchObject", "Sketch004")
sketch5.AttachmentSupport = (doc.getObject("XZ_Plane"), [""])
sketch5.MapMode = "FlatFace"
sketch5.addGeometry(Part.Circle(Vector(0, 0, 0), Vector(0, 0, 1), 4.4), False)
sketch5.addGeometry(Part.Circle(Vector(0, 0, 0), Vector(0, 0, 1), 4), False)
sketch5.addConstraint(Sketcher.Constraint("Coincident", 0, 3, -1, 1))
sketch5.addConstraint(Sketcher.Constraint("Coincident", 1, 3, -1, 1))
sketch5.addConstraint(Sketcher.Constraint("Diameter", 0, Q("8.8 mm")))
sketch5.addConstraint(Sketcher.Constraint("Diameter", 1, Q("7.9 mm")))
sketch5.setExpression("Constraints[2]", "Params.sketch5_diameter")
sketch5.setExpression("Constraints[3]", "Params.sketch5_diameter2")
pad5 = body.newObject("PartDesign::Pad", "Pad004")
pad5.Profile = sketch5
pad5.setExpression("Length", "Params.pad5_length")
pad5.Reversed = True

# Sketch on XZ plane
sketch6 = body.newObject("Sketcher::SketchObject", "Sketch005")
sketch6.AttachmentSupport = (doc.getObject("XZ_Plane"), [""])
sketch6.MapMode = "FlatFace"
sketch6.AttachmentOffset = App.Placement(Vector(0, 0, -4), App.Rotation())
sketch6.addGeometry(Part.ArcOfCircle(Part.Circle(Vector(0.33, -2.21, 0), Vector(0, 0, 1), 0.46), math.radians(-136), math.radians(-27)), False)
sketch6.addGeometry(Part.ArcOfCircle(Part.Circle(Vector(-0.33, -2.21, 0), Vector(0, 0, 1), 0.46), math.radians(-153), math.radians(-44)), False)
sketch6.addGeometry(Part.ArcOfCircle(Part.Circle(Vector(-0.97, -2.01, 0), Vector(0, 0, 1), 0.46), math.radians(-170), math.radians(-61)), False)
sketch6.addGeometry(Part.ArcOfCircle(Part.Circle(Vector(-1.52, -1.64, 0), Vector(0, 0, 1), 0.46), math.radians(173), math.radians(282)), False)
sketch6.addGeometry(Part.ArcOfCircle(Part.Circle(Vector(-1.94, -1.12, 0), Vector(0, 0, 1), 0.46), math.radians(155), math.radians(265)), False)
sketch6.addGeometry(Part.ArcOfCircle(Part.Circle(Vector(-2.18, -0.5, 0), Vector(0, 0, 1), 0.46), math.radians(138), math.radians(247)), False)
sketch6.addGeometry(Part.ArcOfCircle(Part.Circle(Vector(-2.23, 0.17, 0), Vector(0, 0, 1), 0.46), math.radians(121), math.radians(230)), False)
sketch6.addGeometry(Part.ArcOfCircle(Part.Circle(Vector(-2.08, 0.82, 0), Vector(0, 0, 1), 0.46), math.radians(104), math.radians(213)), False)
sketch6.addGeometry(Part.ArcOfCircle(Part.Circle(Vector(-1.75, 1.39, 0), Vector(0, 0, 1), 0.46), math.radians(87), math.radians(196)), False)
sketch6.addGeometry(Part.ArcOfCircle(Part.Circle(Vector(-1.26, 1.85, 0), Vector(0, 0, 1), 0.46), math.radians(70), math.radians(179)), False)
sketch6.addGeometry(Part.ArcOfCircle(Part.Circle(Vector(-0.66, 2.14, 0), Vector(0, 0, 1), 0.46), math.radians(53), math.radians(162)), False)
sketch6.addGeometry(Part.ArcOfCircle(Part.Circle(Vector(0, 2.24, 0), Vector(0, 0, 1), 0.46), math.radians(35), math.radians(145)), False)
sketch6.addGeometry(Part.ArcOfCircle(Part.Circle(Vector(0.66, 2.14, 0), Vector(0, 0, 1), 0.46), math.radians(18), math.radians(127)), False)
sketch6.addGeometry(Part.ArcOfCircle(Part.Circle(Vector(1.26, 1.85, 0), Vector(0, 0, 1), 0.46), math.radians(1), math.radians(110)), False)
sketch6.addGeometry(Part.ArcOfCircle(Part.Circle(Vector(1.75, 1.39, 0), Vector(0, 0, 1), 0.46), math.radians(-16), math.radians(93)), False)
sketch6.addGeometry(Part.ArcOfCircle(Part.Circle(Vector(2.08, 0.82, 0), Vector(0, 0, 1), 0.46), math.radians(-33), math.radians(76)), False)
sketch6.addGeometry(Part.ArcOfCircle(Part.Circle(Vector(2.23, 0.17, 0), Vector(0, 0, 1), 0.46), math.radians(-50), math.radians(59)), False)
sketch6.addGeometry(Part.ArcOfCircle(Part.Circle(Vector(2.18, -0.5, 0), Vector(0, 0, 1), 0.46), math.radians(-67), math.radians(42)), False)
sketch6.addGeometry(Part.ArcOfCircle(Part.Circle(Vector(1.94, -1.12, 0), Vector(0, 0, 1), 0.46), math.radians(-85), math.radians(25)), False)
sketch6.addGeometry(Part.ArcOfCircle(Part.Circle(Vector(1.52, -1.64, 0), Vector(0, 0, 1), 0.46), math.radians(-102), math.radians(7)), False)
sketch6.addGeometry(Part.ArcOfCircle(Part.Circle(Vector(0.97, -2.01, 0), Vector(0, 0, 1), 0.46), math.radians(-119), math.radians(-10)), False)
sketch6.addConstraint(Sketcher.Constraint("Coincident", 0, 1, 1, 2))
sketch6.addConstraint(Sketcher.Constraint("Coincident", 1, 1, 2, 2))
sketch6.addConstraint(Sketcher.Constraint("Coincident", 2, 1, 3, 2))
sketch6.addConstraint(Sketcher.Constraint("Coincident", 3, 1, 4, 2))
sketch6.addConstraint(Sketcher.Constraint("Coincident", 4, 1, 5, 2))
sketch6.addConstraint(Sketcher.Constraint("Coincident", 5, 1, 6, 2))
sketch6.addConstraint(Sketcher.Constraint("Coincident", 6, 1, 7, 2))
sketch6.addConstraint(Sketcher.Constraint("Coincident", 7, 1, 8, 2))
sketch6.addConstraint(Sketcher.Constraint("Coincident", 8, 1, 9, 2))
sketch6.addConstraint(Sketcher.Constraint("Coincident", 9, 1, 10, 2))
sketch6.addConstraint(Sketcher.Constraint("Coincident", 10, 1, 11, 2))
sketch6.addConstraint(Sketcher.Constraint("Coincident", 11, 1, 12, 2))
sketch6.addConstraint(Sketcher.Constraint("Coincident", 12, 1, 13, 2))
sketch6.addConstraint(Sketcher.Constraint("Coincident", 13, 1, 14, 2))
sketch6.addConstraint(Sketcher.Constraint("Coincident", 14, 1, 15, 2))
sketch6.addConstraint(Sketcher.Constraint("Coincident", 15, 1, 16, 2))
sketch6.addConstraint(Sketcher.Constraint("Coincident", 16, 1, 17, 2))
sketch6.addConstraint(Sketcher.Constraint("Coincident", 17, 1, 18, 2))
sketch6.addConstraint(Sketcher.Constraint("Coincident", 18, 1, 19, 2))
sketch6.addConstraint(Sketcher.Constraint("Coincident", 19, 1, 20, 2))
sketch6.addConstraint(Sketcher.Constraint("Coincident", 20, 1, 0, 2))
sketch6.addConstraint(Sketcher.Constraint("Equal", 0, 1))
sketch6.addConstraint(Sketcher.Constraint("Equal", 1, 2))
sketch6.addConstraint(Sketcher.Constraint("Equal", 2, 3))
sketch6.addConstraint(Sketcher.Constraint("Equal", 3, 4))
sketch6.addConstraint(Sketcher.Constraint("Equal", 4, 5))
sketch6.addConstraint(Sketcher.Constraint("Equal", 5, 6))
sketch6.addConstraint(Sketcher.Constraint("Equal", 6, 7))
sketch6.addConstraint(Sketcher.Constraint("Equal", 7, 8))
sketch6.addConstraint(Sketcher.Constraint("Equal", 8, 9))
sketch6.addConstraint(Sketcher.Constraint("Equal", 9, 10))
sketch6.addConstraint(Sketcher.Constraint("Equal", 10, 11))
sketch6.addConstraint(Sketcher.Constraint("Equal", 11, 12))
sketch6.addConstraint(Sketcher.Constraint("Equal", 12, 13))
sketch6.addConstraint(Sketcher.Constraint("Equal", 13, 14))
sketch6.addConstraint(Sketcher.Constraint("Equal", 14, 15))
sketch6.addConstraint(Sketcher.Constraint("Equal", 15, 16))
sketch6.addConstraint(Sketcher.Constraint("Equal", 16, 17))
sketch6.addConstraint(Sketcher.Constraint("Equal", 17, 18))
sketch6.addConstraint(Sketcher.Constraint("Equal", 18, 19))
sketch6.addConstraint(Sketcher.Constraint("Equal", 19, 20))
sketch6.addConstraint(Sketcher.Constraint("Symmetric", 0, 3, 1, 3, -2))
sketch6.addConstraint(Sketcher.Constraint("Symmetric", 10, 3, 12, 3, -2))
sketch6.addConstraint(Sketcher.Constraint("Symmetric", 9, 3, 13, 3, -2))
sketch6.addConstraint(Sketcher.Constraint("Symmetric", 8, 3, 14, 3, -2))
sketch6.addConstraint(Sketcher.Constraint("Symmetric", 7, 3, 15, 3, -2))
sketch6.addConstraint(Sketcher.Constraint("Symmetric", 6, 3, 16, 3, -2))
sketch6.addConstraint(Sketcher.Constraint("Symmetric", 5, 3, 17, 3, -2))
sketch6.addConstraint(Sketcher.Constraint("Symmetric", 4, 3, 18, 3, -2))
sketch6.addConstraint(Sketcher.Constraint("Symmetric", 3, 3, 19, 3, -2))
sketch6.addConstraint(Sketcher.Constraint("Symmetric", 2, 3, 20, 3, -2))
sketch6.addConstraint(Sketcher.Constraint("PointOnObject", 11, 3, -2))
sketch6.addConstraint(Sketcher.Constraint("Radius", 0, Q("0.463767 mm")))
sketch6.addConstraint(Sketcher.Constraint("DistanceY", 2, 3, 3, 3, Q("0.375502 mm")))
sketch6.addConstraint(Sketcher.Constraint("DistanceX", 5, 3, 2, 3, Q("1.209901 mm")))
sketch6.addConstraint(Sketcher.Constraint("DistanceX", 8, 3, 12, 3, Q("2.407499 mm")))
sketch6.addConstraint(Sketcher.Constraint("DistanceY", 2, 1, 3, 3, Q("0.454199 mm")))
sketch6.addConstraint(Sketcher.Constraint("DistanceY", 1, 1, 2, 1, Q("0.327699 mm")))
sketch6.addConstraint(Sketcher.Constraint("DistanceY", 7, 1, 8, 3, Q("0.127399 mm")))
sketch6.addConstraint(Sketcher.Constraint("DistanceY", 9, 3, 8, 1, Q("0.0097 mm")))
sketch6.addConstraint(Sketcher.Constraint("DistanceY", 5, 3, -1, 1, Q("0.497609 mm")))
sketch6.addConstraint(Sketcher.Constraint("DistanceX", 6, 3, -1, 1, Q("2.22998 mm")))
sketch6.addConstraint(Sketcher.Constraint("DistanceX", 7, 3, -1, 1, Q("2.081651 mm")))
sketch6.addConstraint(Sketcher.Constraint("DistanceY", -1, 1, 8, 3, Q("1.394268 mm")))
sketch6.addConstraint(Sketcher.Constraint("DistanceX", 10, 3, -1, 1, Q("0.659141 mm")))
sketch6.addConstraint(Sketcher.Constraint("DistanceY", 0, 1, -1, 1, Q("2.533739 mm")))
sketch6.addConstraint(Sketcher.Constraint("DistanceY", 3, 1, -1, 1, Q("1.579761 mm")))
sketch6.addConstraint(Sketcher.Constraint("DistanceX", 4, 1, -1, 1, Q("2.358592 mm")))
sketch6.addConstraint(Sketcher.Constraint("DistanceY", 4, 1, -1, 1, Q("0.925679 mm")))
sketch6.addConstraint(Sketcher.Constraint("DistanceY", -1, 1, 6, 1, Q("0.56381 mm")))
sketch6.addConstraint(Sketcher.Constraint("DistanceX", 8, 1, -1, 1, Q("1.72338 mm")))
sketch6.addConstraint(Sketcher.Constraint("DistanceX", 9, 1, -1, 1, Q("1.099348 mm")))
sketch6.addConstraint(Sketcher.Constraint("DistanceY", -1, 1, 10, 1, Q("2.50544 mm")))
sketch6.addConstraint(Sketcher.Constraint("DistanceX", 2, 3, 1, 3, Q("0.636972 mm")))
pocket1 = body.newObject("PartDesign::Pocket", "Pocket")
pocket1.Profile = sketch6
pocket1.setExpression("Length", "Params.pocket1_length")
pocket1.Reversed = True

doc.recompute()
